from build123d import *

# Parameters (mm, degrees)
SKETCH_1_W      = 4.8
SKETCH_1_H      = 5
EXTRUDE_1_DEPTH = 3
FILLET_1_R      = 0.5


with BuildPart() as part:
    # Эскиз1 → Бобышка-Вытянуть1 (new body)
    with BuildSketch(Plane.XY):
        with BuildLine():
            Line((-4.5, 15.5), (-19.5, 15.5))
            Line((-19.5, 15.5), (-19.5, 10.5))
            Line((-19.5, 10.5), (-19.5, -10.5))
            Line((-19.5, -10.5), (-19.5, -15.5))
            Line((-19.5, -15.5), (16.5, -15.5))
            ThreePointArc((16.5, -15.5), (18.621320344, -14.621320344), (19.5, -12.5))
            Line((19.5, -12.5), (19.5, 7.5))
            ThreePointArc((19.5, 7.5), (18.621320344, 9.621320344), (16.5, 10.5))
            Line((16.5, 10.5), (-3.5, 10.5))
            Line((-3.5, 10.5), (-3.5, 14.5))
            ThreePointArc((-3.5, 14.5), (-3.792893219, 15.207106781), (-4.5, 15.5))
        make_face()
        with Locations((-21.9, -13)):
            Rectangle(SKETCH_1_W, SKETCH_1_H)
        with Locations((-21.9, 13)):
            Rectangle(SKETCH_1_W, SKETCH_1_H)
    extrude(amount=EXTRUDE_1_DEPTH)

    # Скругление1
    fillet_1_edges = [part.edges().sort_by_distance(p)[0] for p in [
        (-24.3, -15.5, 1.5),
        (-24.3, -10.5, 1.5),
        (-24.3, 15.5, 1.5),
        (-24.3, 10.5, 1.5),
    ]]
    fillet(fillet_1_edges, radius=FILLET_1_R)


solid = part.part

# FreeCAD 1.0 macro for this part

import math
import FreeCAD as App
import Part
import Sketcher

V = App.Vector
Q = App.Units.Quantity


def edges_at(feature, points):
    """Names of the edges that pass closest to the given points."""
    edges = feature.Shape.Edges
    near = lambda p: min(range(len(edges)), key=lambda i: edges[i].distToShape(Part.Vertex(*p))[0])
    return sorted({f"Edge{near(p) + 1}" for p in points})

doc = App.newDocument("Part")
body = doc.addObject("PartDesign::Body", "Body")

# Sketch on XY plane
sketch1 = body.newObject("Sketcher::SketchObject", "Sketch")
sketch1.AttachmentSupport = (doc.getObject("XY_Plane"), [""])
sketch1.MapMode = "FlatFace"
sketch1.addGeometry(Part.LineSegment(V(-4.5, 15.5, 0), V(-24.3, 15.5, 0)), False)
sketch1.addGeometry(Part.LineSegment(V(-24.3, 15.5, 0), V(-24.3, 10.5, 0)), False)
sketch1.addGeometry(Part.LineSegment(V(-24.3, 10.5, 0), V(-19.5, 10.5, 0)), False)
sketch1.addGeometry(Part.LineSegment(V(-19.5, 10.5, 0), V(-19.5, -10.5, 0)), False)
sketch1.addGeometry(Part.LineSegment(V(-19.5, -10.5, 0), V(-24.3, -10.5, 0)), False)
sketch1.addGeometry(Part.LineSegment(V(-24.3, -10.5, 0), V(-24.3, -15.5, 0)), False)
sketch1.addGeometry(Part.LineSegment(V(-24.3, -15.5, 0), V(16.5, -15.5, 0)), False)
sketch1.addGeometry(Part.ArcOfCircle(Part.Circle(V(16.5, -12.5, 0), V(0, 0, 1), 3), math.radians(-90), math.radians(0)), False)
sketch1.addGeometry(Part.LineSegment(V(19.5, -12.5, 0), V(19.5, 7.5, 0)), False)
sketch1.addGeometry(Part.ArcOfCircle(Part.Circle(V(16.5, 7.5, 0), V(0, 0, 1), 3), math.radians(0), math.radians(90)), False)
sketch1.addGeometry(Part.LineSegment(V(16.5, 10.5, 0), V(-3.5, 10.5, 0)), False)
sketch1.addGeometry(Part.LineSegment(V(-3.5, 10.5, 0), V(-3.5, 14.5, 0)), False)
sketch1.addGeometry(Part.ArcOfCircle(Part.Circle(V(-4.5, 14.5, 0), V(0, 0, 1), 1), math.radians(0), math.radians(90)), False)
sketch1.addConstraint(Sketcher.Constraint("Coincident", 0, 2, 1, 1))
sketch1.addConstraint(Sketcher.Constraint("Coincident", 1, 2, 2, 1))
sketch1.addConstraint(Sketcher.Constraint("Coincident", 2, 2, 3, 1))
sketch1.addConstraint(Sketcher.Constraint("Coincident", 3, 2, 4, 1))
sketch1.addConstraint(Sketcher.Constraint("Coincident", 4, 2, 5, 1))
sketch1.addConstraint(Sketcher.Constraint("Coincident", 5, 2, 6, 1))
sketch1.addConstraint(Sketcher.Constraint("Tangent", 6, 2, 7, 1))
sketch1.addConstraint(Sketcher.Constraint("Tangent", 7, 2, 8, 1))
sketch1.addConstraint(Sketcher.Constraint("Tangent", 8, 2, 9, 1))
sketch1.addConstraint(Sketcher.Constraint("Tangent", 9, 2, 10, 1))
sketch1.addConstraint(Sketcher.Constraint("Coincident", 10, 2, 11, 1))
sketch1.addConstraint(Sketcher.Constraint("Tangent", 11, 2, 12, 1))
sketch1.addConstraint(Sketcher.Constraint("Tangent", 12, 2, 0, 1))
sketch1.addConstraint(Sketcher.Constraint("Horizontal", 0))
sketch1.addConstraint(Sketcher.Constraint("Vertical", 1))
sketch1.addConstraint(Sketcher.Constraint("Horizontal", 2))
sketch1.addConstraint(Sketcher.Constraint("Vertical", 3))
sketch1.addConstraint(Sketcher.Constraint("Horizontal", 4))
sketch1.addConstraint(Sketcher.Constraint("Vertical", 5))
sketch1.addConstraint(Sketcher.Constraint("Horizontal", 6))
sketch1.addConstraint(Sketcher.Constraint("Vertical", 8))
sketch1.addConstraint(Sketcher.Constraint("Horizontal", 10))
sketch1.addConstraint(Sketcher.Constraint("Vertical", 11))
sketch1.addConstraint(Sketcher.Constraint("Equal", 7, 9))
sketch1.addConstraint(Sketcher.Constraint("Symmetric", 1, 2, 4, 2, -1))
sketch1.addConstraint(Sketcher.Constraint("Horizontal", 2, 2, 9, 2))
sketch1.addConstraint(Sketcher.Constraint("Equal", 1, 5))
sketch1.addConstraint(Sketcher.Constraint("Equal", 10, 8))
sketch1.addConstraint(Sketcher.Constraint("Radius", 7, Q("3 mm")))
sketch1.addConstraint(Sketcher.Constraint("Radius", 12, Q("1 mm")))
sketch1.addConstraint(Sketcher.Constraint("DistanceX", 10, 2, 10, 1, Q("20 mm")))
sketch1.addConstraint(Sketcher.Constraint("DistanceY", 1, 2, 1, 1, Q("5 mm")))
sketch1.addConstraint(Sketcher.Constraint("DistanceX", 0, 2, 0, 1, Q("19.8 mm")))
sketch1.addConstraint(Sketcher.Constraint("DistanceX", 2, 1, 2, 2, Q("4.8 mm")))
sketch1.addConstraint(Sketcher.Constraint("DistanceX", -1, 1, 7, 3, Q("16.5 mm")))
pad1 = body.newObject("PartDesign::Pad", "Pad")
pad1.Profile = sketch1
pad1.Length = 3
doc.recompute()

fillet = body.newObject("PartDesign::Fillet", "Fillet")
fillet.Base = (pad1, edges_at(pad1, [
    (-24.3, -15.5, 1.5),
    (-24.3, -10.5, 1.5),
    (-24.3, 15.5, 1.5),
    (-24.3, 10.5, 1.5),
]))
fillet.Radius = 0.5

doc.recompute()
